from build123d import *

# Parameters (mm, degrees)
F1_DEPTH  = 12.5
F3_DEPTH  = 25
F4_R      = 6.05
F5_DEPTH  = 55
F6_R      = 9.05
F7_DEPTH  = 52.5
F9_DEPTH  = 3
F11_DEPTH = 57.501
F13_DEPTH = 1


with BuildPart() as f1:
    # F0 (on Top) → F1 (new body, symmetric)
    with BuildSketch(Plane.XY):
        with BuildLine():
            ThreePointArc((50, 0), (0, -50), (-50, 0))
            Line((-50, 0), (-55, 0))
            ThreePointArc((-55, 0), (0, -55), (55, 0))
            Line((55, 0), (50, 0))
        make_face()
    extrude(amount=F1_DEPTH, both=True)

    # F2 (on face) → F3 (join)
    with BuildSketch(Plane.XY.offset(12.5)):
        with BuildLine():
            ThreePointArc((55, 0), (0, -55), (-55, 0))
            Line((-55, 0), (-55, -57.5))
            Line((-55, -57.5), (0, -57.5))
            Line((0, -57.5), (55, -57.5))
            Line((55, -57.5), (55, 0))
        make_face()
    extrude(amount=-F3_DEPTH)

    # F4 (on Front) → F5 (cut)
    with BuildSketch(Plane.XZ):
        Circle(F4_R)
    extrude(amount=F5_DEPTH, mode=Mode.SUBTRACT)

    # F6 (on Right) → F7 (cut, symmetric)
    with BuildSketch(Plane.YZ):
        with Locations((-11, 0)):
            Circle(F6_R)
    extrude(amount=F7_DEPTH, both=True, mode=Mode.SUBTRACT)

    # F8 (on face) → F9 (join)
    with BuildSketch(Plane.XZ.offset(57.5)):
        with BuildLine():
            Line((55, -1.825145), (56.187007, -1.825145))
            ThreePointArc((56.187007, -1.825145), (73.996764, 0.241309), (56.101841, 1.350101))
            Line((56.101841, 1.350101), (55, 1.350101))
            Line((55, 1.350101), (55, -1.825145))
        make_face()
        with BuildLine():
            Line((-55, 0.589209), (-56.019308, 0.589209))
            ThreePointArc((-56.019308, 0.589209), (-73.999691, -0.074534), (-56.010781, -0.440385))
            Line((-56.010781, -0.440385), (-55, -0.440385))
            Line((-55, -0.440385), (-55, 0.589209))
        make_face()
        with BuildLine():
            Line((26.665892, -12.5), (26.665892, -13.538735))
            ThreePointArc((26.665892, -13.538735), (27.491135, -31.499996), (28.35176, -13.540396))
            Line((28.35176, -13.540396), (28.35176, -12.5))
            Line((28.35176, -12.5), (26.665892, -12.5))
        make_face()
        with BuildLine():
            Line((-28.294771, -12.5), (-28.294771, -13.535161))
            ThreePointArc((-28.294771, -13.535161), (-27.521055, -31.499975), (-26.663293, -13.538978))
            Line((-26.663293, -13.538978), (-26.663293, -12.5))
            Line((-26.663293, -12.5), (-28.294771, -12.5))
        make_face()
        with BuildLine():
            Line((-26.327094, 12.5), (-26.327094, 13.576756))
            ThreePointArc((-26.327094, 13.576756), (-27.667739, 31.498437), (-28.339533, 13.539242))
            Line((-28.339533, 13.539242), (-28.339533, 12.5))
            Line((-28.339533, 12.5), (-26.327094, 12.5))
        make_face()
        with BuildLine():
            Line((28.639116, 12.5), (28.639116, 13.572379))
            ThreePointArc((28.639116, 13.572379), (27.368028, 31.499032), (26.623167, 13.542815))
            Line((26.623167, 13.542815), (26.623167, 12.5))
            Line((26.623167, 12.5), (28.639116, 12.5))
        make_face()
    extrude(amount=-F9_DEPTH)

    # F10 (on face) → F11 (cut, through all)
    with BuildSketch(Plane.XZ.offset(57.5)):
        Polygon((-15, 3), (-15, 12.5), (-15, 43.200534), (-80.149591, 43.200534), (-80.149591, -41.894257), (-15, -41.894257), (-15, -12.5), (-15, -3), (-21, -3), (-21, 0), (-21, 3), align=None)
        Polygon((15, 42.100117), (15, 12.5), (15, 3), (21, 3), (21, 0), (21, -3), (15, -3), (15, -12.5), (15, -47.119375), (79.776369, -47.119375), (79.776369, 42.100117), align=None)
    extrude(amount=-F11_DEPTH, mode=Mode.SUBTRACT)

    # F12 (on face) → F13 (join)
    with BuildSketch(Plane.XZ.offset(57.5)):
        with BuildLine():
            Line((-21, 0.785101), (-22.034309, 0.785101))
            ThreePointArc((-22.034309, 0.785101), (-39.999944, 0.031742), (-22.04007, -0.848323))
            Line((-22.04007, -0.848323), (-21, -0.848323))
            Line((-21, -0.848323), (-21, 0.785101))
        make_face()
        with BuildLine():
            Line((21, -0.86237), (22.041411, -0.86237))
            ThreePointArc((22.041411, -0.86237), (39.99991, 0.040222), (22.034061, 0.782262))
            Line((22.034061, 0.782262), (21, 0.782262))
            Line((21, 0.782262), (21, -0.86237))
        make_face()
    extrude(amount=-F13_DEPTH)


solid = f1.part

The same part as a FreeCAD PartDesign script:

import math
import FreeCAD as App
import Part
import Sketcher
Q = App.Units.Quantity


def add_polygon(sketch, points):
    """Adds a closed chain of lines whose ends are joined by coincident constraints."""
    first, n = sketch.GeometryCount, len(points)
    for a, b in zip(points, points[1:] + points[:1]):
        sketch.addGeometry(Part.LineSegment(App.Vector(*a, 0), App.Vector(*b, 0)), False)
    for i in range(n):
        sketch.addConstraint(Sketcher.Constraint("Coincident", first + i, 2, first + (i + 1) % n, 1))

doc = App.newDocument("Part")
body = doc.addObject("PartDesign::Body", "Body")

sketch1 = doc.addObject("Sketcher::SketchObject", "Sketch")
body.addObject(sketch1)
sketch1.AttachmentSupport = (doc.XY_Plane, [""])
sketch1.MapMode = "FlatFace"
sketch1.addGeometry([
    Part.ArcOfCircle(Part.Circle(App.Vector(0, 0, 0), App.Vector(0, 0, 1), 50), math.radians(180), math.radians(360)),
    Part.LineSegment(App.Vector(-50, 0, 0), App.Vector(-55, 0, 0)),
    Part.ArcOfCircle(Part.Circle(App.Vector(0, 0, 0), App.Vector(0, 0, 1), 55), math.radians(180), math.radians(360)),
    Part.LineSegment(App.Vector(55, 0, 0), App.Vector(50, 0, 0)),
], False)
sketch1.addConstraint([
    Sketcher.Constraint("Coincident", 0, 1, 1, 1),
    Sketcher.Constraint("Coincident", 1, 2, 2, 1),
    Sketcher.Constraint("Coincident", 2, 2, 3, 1),
    Sketcher.Constraint("Coincident", 3, 2, 0, 2),
    Sketcher.Constraint("Horizontal", 1),
    Sketcher.Constraint("Horizontal", 3),
    Sketcher.Constraint("Coincident", 0, 3, -1, 1),
    Sketcher.Constraint("Coincident", 2, 3, -1, 1),
    Sketcher.Constraint("PointOnObject", 0, 1, -1),
    Sketcher.Constraint("PointOnObject", 2, 2, -1),
    Sketcher.Constraint("Radius", 0, Q("50 mm")),
    Sketcher.Constraint("Radius", 2, Q("55 mm")),
])
pad1 = doc.addObject("PartDesign::Pad", "Pad")
body.addObject(pad1)
pad1.Profile = sketch1
pad1.Length = 25
pad1.Midplane = True

sketch2 = doc.addObject("Sketcher::SketchObject", "Sketch001")
body.addObject(sketch2)
sketch2.AttachmentSupport = (doc.XY_Plane, [""])
sketch2.MapMode = "FlatFace"
sketch2.AttachmentOffset = App.Placement(App.Vector(0, 0, 12.5), App.Rotation())
sketch2.addGeometry([
    Part.ArcOfCircle(Part.Circle(App.Vector(0, 0, 0), App.Vector(0, 0, 1), 55), math.radians(180), math.radians(360)),
    Part.LineSegment(App.Vector(-55, 0, 0), App.Vector(-55, -58, 0)),
    Part.LineSegment(App.Vector(-55, -58, 0), App.Vector(55, -58, 0)),
    Part.LineSegment(App.Vector(55, -58, 0), App.Vector(55, 0, 0)),
], False)
sketch2.addConstraint([
    Sketcher.Constraint("Tangent", 0, 1, 1, 1),
    Sketcher.Constraint("Coincident", 1, 2, 2, 1),
    Sketcher.Constraint("Coincident", 2, 2, 3, 1),
    Sketcher.Constraint("Tangent", 3, 2, 0, 2),
    Sketcher.Constraint("Vertical", 1),
    Sketcher.Constraint("Horizontal", 2),
    Sketcher.Constraint("Vertical", 3),
    Sketcher.Constraint("Coincident", 0, 3, -1, 1),
    Sketcher.Constraint("Radius", 0, Q("55 mm")),
    Sketcher.Constraint("DistanceY", 1, 2, 1, 1, Q("57.5 mm")),
])
pad2 = doc.addObject("PartDesign::Pad", "Pad001")
body.addObject(pad2)
pad2.Profile = sketch2
pad2.Length = 25
pad2.Reversed = True

sketch3 = doc.addObject("Sketcher::SketchObject", "Sketch002")
body.addObject(sketch3)
sketch3.AttachmentSupport = (doc.XZ_Plane, [""])
sketch3.MapMode = "FlatFace"
sketch3.addGeometry(Part.Circle(App.Vector(0, 0, 0), App.Vector(0, 0, 1), 6), False)
sketch3.addConstraint([
    Sketcher.Constraint("Coincident", 0, 3, -1, 1),
    Sketcher.Constraint("Diameter", 0, Q("12.1 mm")),
])
pocket1 = doc.addObject("PartDesign::Pocket", "Pocket")
body.addObject(pocket1)
pocket1.Profile = sketch3
pocket1.Length = 55
pocket1.Reversed = True

sketch4 = doc.addObject("Sketcher::SketchObject", "Sketch003")
body.addObject(sketch4)
sketch4.AttachmentSupport = (doc.YZ_Plane, [""])
sketch4.MapMode = "FlatFace"
sketch4.addGeometry(Part.Circle(App.Vector(-11, 0, 0), App.Vector(0, 0, 1), 9), False)
sketch4.addConstraint([
    Sketcher.Constraint("PointOnObject", 0, 3, -1),
    Sketcher.Constraint("Diameter", 0, Q("18.1 mm")),
    Sketcher.Constraint("DistanceX", 0, 3, -1, 1, Q("11 mm")),
])
pocket2 = doc.addObject("PartDesign::Pocket", "Pocket001")
body.addObject(pocket2)
pocket2.Profile = sketch4
pocket2.Length = 105
pocket2.Midplane = True

sketch5 = doc.addObject("Sketcher::SketchObject", "Sketch004")
body.addObject(sketch5)
sketch5.AttachmentSupport = (doc.XZ_Plane, [""])
sketch5.MapMode = "FlatFace"
sketch5.AttachmentOffset = App.Placement(App.Vector(0, 0, 57.5), App.Rotation())
sketch5.addGeometry([
    Part.LineSegment(App.Vector(55, -1.8, 0), App.Vector(56.2, -1.8, 0)),
    Part.ArcOfCircle(Part.Circle(App.Vector(65, 0, 0), App.Vector(0, 0, 1), 9), math.radians(-168), math.radians(171)),
    Part.LineSegment(App.Vector(56.1, 1.4, 0), App.Vector(55, 1.4, 0)),
    Part.LineSegment(App.Vector(55, 1.4, 0), App.Vector(55, -1.8, 0)),
    Part.LineSegment(App.Vector(-55, 0.6, 0), App.Vector(-56, 0.6, 0)),
    Part.ArcOfCircle(Part.Circle(App.Vector(-65, 0, 0), App.Vector(0, 0, 1), 9), math.radians(4), math.radians(357)),
    Part.LineSegment(App.Vector(-56, -0.4, 0), App.Vector(-55, -0.4, 0)),
    Part.LineSegment(App.Vector(-55, -0.4, 0), App.Vector(-55, 0.6, 0)),
    Part.LineSegment(App.Vector(26.7, -12.5, 0), App.Vector(26.7, -13.5, 0)),
    Part.ArcOfCircle(Part.Circle(App.Vector(27.5, -22.5, 0), App.Vector(0, 0, 1), 9), math.radians(95), math.radians(445)),
    Part.LineSegment(App.Vector(28.4, -13.5, 0), App.Vector(28.4, -12.5, 0)),
    Part.LineSegment(App.Vector(28.4, -12.5, 0), App.Vector(26.7, -12.5, 0)),
    Part.LineSegment(App.Vector(-28.3, -12.5, 0), App.Vector(-28.3, -13.5, 0)),
    Part.ArcOfCircle(Part.Circle(App.Vector(-27.5, -22.5, 0), App.Vector(0, 0, 1), 9), math.radians(95), math.radians(445)),
    Part.LineSegment(App.Vector(-26.7, -13.5, 0), App.Vector(-26.7, -12.5, 0)),
    Part.LineSegment(App.Vector(-26.7, -12.5, 0), App.Vector(-28.3, -12.5, 0)),
    Part.LineSegment(App.Vector(-26.3, 12.5, 0), App.Vector(-26.3, 13.6, 0)),
    Part.ArcOfCircle(Part.Circle(App.Vector(-27.5, 22.5, 0), App.Vector(0, 0, 1), 9), math.radians(-83), math.radians(265)),
    Part.LineSegment(App.Vector(-28.3, 13.5, 0), App.Vector(-28.3, 12.5, 0)),
    Part.LineSegment(App.Vector(-28.3, 12.5, 0), App.Vector(-26.3, 12.5, 0)),
    Part.LineSegment(App.Vector(28.6, 12.5, 0), App.Vector(28.6, 13.6, 0)),
    Part.ArcOfCircle(Part.Circle(App.Vector(27.5, 22.5, 0), App.Vector(0, 0, 1), 9), math.radians(-83), math.radians(264)),
    Part.LineSegment(App.Vector(26.6, 13.5, 0), App.Vector(26.6, 12.5, 0)),
    Part.LineSegment(App.Vector(26.6, 12.5, 0), App.Vector(28.6, 12.5, 0)),
], False)
sketch5.addConstraint([
    Sketcher.Constraint("Coincident", 0, 2, 1, 1),
    Sketcher.Constraint("Coincident", 1, 2, 2, 1),
    Sketcher.Constraint("Coincident", 2, 2, 3, 1),
    Sketcher.Constraint("Coincident", 3, 2, 0, 1),
    Sketcher.Constraint("Coincident", 4, 2, 5, 1),
    Sketcher.Constraint("Coincident", 5, 2, 6, 1),
    Sketcher.Constraint("Coincident", 6, 2, 7, 1),
    Sketcher.Constraint("Coincident", 7, 2, 4, 1),
    Sketcher.Constraint("Coincident", 8, 2, 9, 1),
    Sketcher.Constraint("Coincident", 9, 2, 10, 1),
    Sketcher.Constraint("Coincident", 10, 2, 11, 1),
    Sketcher.Constraint("Coincident", 11, 2, 8, 1),
    Sketcher.Constraint("Coincident", 12, 2, 13, 1),
    Sketcher.Constraint("Coincident", 13, 2, 14, 1),
    Sketcher.Constraint("Coincident", 14, 2, 15, 1),
    Sketcher.Constraint("Coincident", 15, 2, 12, 1),
    Sketcher.Constraint("Coincident", 16, 2, 17, 1),
    Sketcher.Constraint("Coincident", 17, 2, 18, 1),
    Sketcher.Constraint("Coincident", 18, 2, 19, 1),
    Sketcher.Constraint("Coincident", 19, 2, 16, 1),
    Sketcher.Constraint("Coincident", 20, 2, 21, 1),
    Sketcher.Constraint("Coincident", 21, 2, 22, 1),
    Sketcher.Constraint("Coincident", 22, 2, 23, 1),
    Sketcher.Constraint("Coincident", 23, 2, 20, 1),
    Sketcher.Constraint("Horizontal", 0),
    Sketcher.Constraint("Horizontal", 2),
    Sketcher.Constraint("Vertical", 3),
    Sketcher.Constraint("Horizontal", 4),
    Sketcher.Constraint("Horizontal", 6),
    Sketcher.Constraint("Vertical", 7),
    Sketcher.Constraint("Vertical", 8),
    Sketcher.Constraint("Vertical", 10),
    Sketcher.Constraint("Horizontal", 11),
    Sketcher.Constraint("Vertical", 12),
    Sketcher.Constraint("Vertical", 14),
    Sketcher.Constraint("Horizontal", 15),
    Sketcher.Constraint("Vertical", 16),
    Sketcher.Constraint("Vertical", 18),
    Sketcher.Constraint("Horizontal", 19),
    Sketcher.Constraint("Vertical", 20),
    Sketcher.Constraint("Vertical", 22),
    Sketcher.Constraint("Horizontal", 23),
    Sketcher.Constraint("Equal", 1, 5),
    Sketcher.Constraint("Equal", 5, 9),
    Sketcher.Constraint("Equal", 9, 13),
    Sketcher.Constraint("Equal", 13, 17),
    Sketcher.Constraint("Equal", 17, 21),
    Sketcher.Constraint("Symmetric", 1, 3, 5, 3, -1, 1),
    Sketcher.Constraint("Symmetric", 9, 3, 17, 3, -1, 1),
    Sketcher.Constraint("Symmetric", 13, 3, 21, 3, -1, 1),
    Sketcher.Constraint("Symmetric", 9, 3, 13, 3, -2),
    Sketcher.Constraint("PointOnObject", 1, 3, -1),
    Sketcher.Constraint("Horizontal", 11, 2, 14, 2),
    Sketcher.Constraint("Horizontal", 19, 2, 22, 2),
    Sketcher.Constraint("Radius", 1, Q("9 mm")),
    Sketcher.Constraint("DistanceX", -1, 1, 1, 3, Q("65 mm")),
    Sketcher.Constraint("DistanceX", -1, 1, 2, 2, Q("55 mm")),
    Sketcher.Constraint("DistanceX", 6, 2, -1, 1, Q("55 mm")),
    Sketcher.Constraint("DistanceX", 13, 3, 9, 3, Q("54.999999 mm")),
    Sketcher.Constraint("DistanceY", 13, 3, 17, 3, Q("45 mm")),
    Sketcher.Constraint("DistanceY", 9, 3, 10, 2, Q("10 mm")),
    Sketcher.Constraint("DistanceY", 18, 2, 17, 3, Q("10 mm")),
    Sketcher.Constraint("DistanceX", 2, 2, 2, 1, Q("1.101841 mm")),
    Sketcher.Constraint("DistanceX", 4, 2, 4, 1, Q("1.019308 mm")),
    Sketcher.Constraint("DistanceX", 6, 1, 6, 2, Q("1.010781 mm")),
    Sketcher.Constraint("DistanceX", 15, 2, 15, 1, Q("1.631478 mm")),
    Sketcher.Constraint("DistanceX", 19, 1, 19, 2, Q("2.012439 mm")),
    Sketcher.Constraint("DistanceX", 23, 1, 23, 2, Q("2.015949 mm")),
    Sketcher.Constraint("DistanceY", 12, 2, 12, 1, Q("1.035161 mm")),
    Sketcher.Constraint("DistanceY", 18, 2, 18, 1, Q("1.039242 mm")),
    Sketcher.Constraint("DistanceY", 20, 1, 20, 2, Q("1.072379 mm")),
    Sketcher.Constraint("DistanceX", 0, 1, 0, 2, Q("1.187007 mm")),
    Sketcher.Constraint("DistanceX", 11, 2, 11, 1, Q("1.685868 mm")),
    Sketcher.Constraint("DistanceY", 8, 2, 8, 1, Q("1.038735 mm")),
])
pad3 = doc.addObject("PartDesign::Pad", "Pad002")
body.addObject(pad3)
pad3.Profile = sketch5
pad3.Length = 3
pad3.Reversed = True

sketch6 = doc.addObject("Sketcher::SketchObject", "Sketch005")
body.addObject(sketch6)
sketch6.AttachmentSupport = (doc.XZ_Plane, [""])
sketch6.MapMode = "FlatFace"
sketch6.AttachmentOffset = App.Placement(App.Vector(0, 0, 57.5), App.Rotation())
add_polygon(sketch6, [(-15, 3), (-15, 43), (-80, 43), (-80, -42), (-15, -42), (-15, -3), (-21, -3), (-21, 3)])
add_polygon(sketch6, [(15, 42), (15, 3), (21, 3), (21, -3), (15, -3), (15, -47), (80, -47), (80, 42)])
sketch6.addConstraint([
    Sketcher.Constraint("Vertical", 0),
    Sketcher.Constraint("Horizontal", 1),
    Sketcher.Constraint("Vertical", 2),
    Sketcher.Constraint("Horizontal", 3),
    Sketcher.Constraint("Vertical", 4),
    Sketcher.Constraint("Horizontal", 5),
    Sketcher.Constraint("Vertical", 6),
    Sketcher.Constraint("Horizontal", 7),
    Sketcher.Constraint("Vertical", 8),
    Sketcher.Constraint("Horizontal", 9),
    Sketcher.Constraint("Vertical", 10),
    Sketcher.Constraint("Horizontal", 11),
    Sketcher.Constraint("Vertical", 12),
    Sketcher.Constraint("Horizontal", 13),
    Sketcher.Constraint("Vertical", 14),
    Sketcher.Constraint("Horizontal", 15),
    Sketcher.Constraint("Symmetric", 4, 2, 8, 2, -1, 1),
    Sketcher.Constraint("Symmetric", 6, 2, 10, 2, -1, 1),
    Sketcher.Constraint("Symmetric", 7, 2, 8, 2, -2),
    Sketcher.Constraint("Vertical", 8, 2, 11, 2),
    Sketcher.Constraint("Equal", 11, 6),
    Sketcher.Constraint("DistanceX", 5, 2, 5, 1, Q("6 mm")),
    Sketcher.Constraint("DistanceX", 0, 2, -1, 1, Q("15 mm")),
    Sketcher.Constraint("DistanceX", 1, 2, 1, 1, Q("65.149591 mm")),
    Sketcher.Constraint("DistanceX", 13, 1, 13, 2, Q("64.776369 mm")),
    Sketcher.Constraint("DistanceY", 2, 2, 2, 1, Q("85.094791 mm")),
    Sketcher.Constraint("DistanceY", 0, 1, 0, 2, Q("40.200534 mm")),
    Sketcher.Constraint("DistanceY", 8, 2, 8, 1, Q("39.100117 mm")),
    Sketcher.Constraint("DistanceY", 12, 2, 12, 1, Q("44.119375 mm")),
])
pocket3 = doc.addObject("PartDesign::Pocket", "Pocket002")
body.addObject(pocket3)
pocket3.Profile = sketch6
pocket3.Type = "ThroughAll"

sketch7 = doc.addObject("Sketcher::SketchObject", "Sketch006")
body.addObject(sketch7)
sketch7.AttachmentSupport = (doc.XZ_Plane, [""])
sketch7.MapMode = "FlatFace"
sketch7.AttachmentOffset = App.Placement(App.Vector(0, 0, 57.5), App.Rotation())
sketch7.addGeometry([
    Part.LineSegment(App.Vector(-21, 0.8, 0), App.Vector(-22, 0.8, 0)),
    Part.ArcOfCircle(Part.Circle(App.Vector(-31, 0, 0), App.Vector(0, 0, 1), 9), math.radians(5), math.radians(355)),
    Part.LineSegment(App.Vector(-22, -0.8, 0), App.Vector(-21, -0.8, 0)),
    Part.LineSegment(App.Vector(-21, -0.8, 0), App.Vector(-21, 0.8, 0)),
    Part.LineSegment(App.Vector(21, -0.9, 0), App.Vector(22, -0.9, 0)),
    Part.ArcOfCircle(Part.Circle(App.Vector(31, 0, 0), App.Vector(0, 0, 1), 9), math.radians(-175), math.radians(175)),
    Part.LineSegment(App.Vector(22, 0.8, 0), App.Vector(21, 0.8, 0)),
    Part.LineSegment(App.Vector(21, 0.8, 0), App.Vector(21, -0.9, 0)),
], False)
sketch7.addConstraint([
    Sketcher.Constraint("Coincident", 0, 2, 1, 1),
    Sketcher.Constraint("Coincident", 1, 2, 2, 1),
    Sketcher.Constraint("Coincident", 2, 2, 3, 1),
    Sketcher.Constraint("Coincident", 3, 2, 0, 1),
    Sketcher.Constraint("Coincident", 4, 2, 5, 1),
    Sketcher.Constraint("Coincident", 5, 2, 6, 1),
    Sketcher.Constraint("Coincident", 6, 2, 7, 1),
    Sketcher.Constraint("Coincident", 7, 2, 4, 1),
    Sketcher.Constraint("Horizontal", 0),
    Sketcher.Constraint("Horizontal", 2),
    Sketcher.Constraint("Vertical", 3),
    Sketcher.Constraint("Horizontal", 4),
    Sketcher.Constraint("Horizontal", 6),
    Sketcher.Constraint("Vertical", 7),
    Sketcher.Constraint("Equal", 1, 5),
    Sketcher.Constraint("Symmetric", 1, 3, 5, 3, -1, 1),
    Sketcher.Constraint("PointOnObject", 1, 3, -1),
    Sketcher.Constraint("Radius", 1, Q("9 mm")),
    Sketcher.Constraint("DistanceX", 1, 3, -1, 1, Q("31 mm")),
    Sketcher.Constraint("DistanceX", 2, 2, -1, 1, Q("21 mm")),
    Sketcher.Constraint("DistanceX", -1, 1, 6, 2, Q("21 mm")),
    Sketcher.Constraint("DistanceX", 0, 2, 0, 1, Q("1.034309 mm")),
    Sketcher.Constraint("DistanceX", 2, 1, 2, 2, Q("1.04007 mm")),
    Sketcher.Constraint("DistanceX", 4, 1, 4, 2, Q("1.041411 mm")),
    Sketcher.Constraint("DistanceX", 6, 2, 6, 1, Q("1.034061 mm")),
])
pad4 = doc.addObject("PartDesign::Pad", "Pad003")
body.addObject(pad4)
pad4.Profile = sketch7
pad4.Length = 1
pad4.Reversed = True

doc.recompute()
